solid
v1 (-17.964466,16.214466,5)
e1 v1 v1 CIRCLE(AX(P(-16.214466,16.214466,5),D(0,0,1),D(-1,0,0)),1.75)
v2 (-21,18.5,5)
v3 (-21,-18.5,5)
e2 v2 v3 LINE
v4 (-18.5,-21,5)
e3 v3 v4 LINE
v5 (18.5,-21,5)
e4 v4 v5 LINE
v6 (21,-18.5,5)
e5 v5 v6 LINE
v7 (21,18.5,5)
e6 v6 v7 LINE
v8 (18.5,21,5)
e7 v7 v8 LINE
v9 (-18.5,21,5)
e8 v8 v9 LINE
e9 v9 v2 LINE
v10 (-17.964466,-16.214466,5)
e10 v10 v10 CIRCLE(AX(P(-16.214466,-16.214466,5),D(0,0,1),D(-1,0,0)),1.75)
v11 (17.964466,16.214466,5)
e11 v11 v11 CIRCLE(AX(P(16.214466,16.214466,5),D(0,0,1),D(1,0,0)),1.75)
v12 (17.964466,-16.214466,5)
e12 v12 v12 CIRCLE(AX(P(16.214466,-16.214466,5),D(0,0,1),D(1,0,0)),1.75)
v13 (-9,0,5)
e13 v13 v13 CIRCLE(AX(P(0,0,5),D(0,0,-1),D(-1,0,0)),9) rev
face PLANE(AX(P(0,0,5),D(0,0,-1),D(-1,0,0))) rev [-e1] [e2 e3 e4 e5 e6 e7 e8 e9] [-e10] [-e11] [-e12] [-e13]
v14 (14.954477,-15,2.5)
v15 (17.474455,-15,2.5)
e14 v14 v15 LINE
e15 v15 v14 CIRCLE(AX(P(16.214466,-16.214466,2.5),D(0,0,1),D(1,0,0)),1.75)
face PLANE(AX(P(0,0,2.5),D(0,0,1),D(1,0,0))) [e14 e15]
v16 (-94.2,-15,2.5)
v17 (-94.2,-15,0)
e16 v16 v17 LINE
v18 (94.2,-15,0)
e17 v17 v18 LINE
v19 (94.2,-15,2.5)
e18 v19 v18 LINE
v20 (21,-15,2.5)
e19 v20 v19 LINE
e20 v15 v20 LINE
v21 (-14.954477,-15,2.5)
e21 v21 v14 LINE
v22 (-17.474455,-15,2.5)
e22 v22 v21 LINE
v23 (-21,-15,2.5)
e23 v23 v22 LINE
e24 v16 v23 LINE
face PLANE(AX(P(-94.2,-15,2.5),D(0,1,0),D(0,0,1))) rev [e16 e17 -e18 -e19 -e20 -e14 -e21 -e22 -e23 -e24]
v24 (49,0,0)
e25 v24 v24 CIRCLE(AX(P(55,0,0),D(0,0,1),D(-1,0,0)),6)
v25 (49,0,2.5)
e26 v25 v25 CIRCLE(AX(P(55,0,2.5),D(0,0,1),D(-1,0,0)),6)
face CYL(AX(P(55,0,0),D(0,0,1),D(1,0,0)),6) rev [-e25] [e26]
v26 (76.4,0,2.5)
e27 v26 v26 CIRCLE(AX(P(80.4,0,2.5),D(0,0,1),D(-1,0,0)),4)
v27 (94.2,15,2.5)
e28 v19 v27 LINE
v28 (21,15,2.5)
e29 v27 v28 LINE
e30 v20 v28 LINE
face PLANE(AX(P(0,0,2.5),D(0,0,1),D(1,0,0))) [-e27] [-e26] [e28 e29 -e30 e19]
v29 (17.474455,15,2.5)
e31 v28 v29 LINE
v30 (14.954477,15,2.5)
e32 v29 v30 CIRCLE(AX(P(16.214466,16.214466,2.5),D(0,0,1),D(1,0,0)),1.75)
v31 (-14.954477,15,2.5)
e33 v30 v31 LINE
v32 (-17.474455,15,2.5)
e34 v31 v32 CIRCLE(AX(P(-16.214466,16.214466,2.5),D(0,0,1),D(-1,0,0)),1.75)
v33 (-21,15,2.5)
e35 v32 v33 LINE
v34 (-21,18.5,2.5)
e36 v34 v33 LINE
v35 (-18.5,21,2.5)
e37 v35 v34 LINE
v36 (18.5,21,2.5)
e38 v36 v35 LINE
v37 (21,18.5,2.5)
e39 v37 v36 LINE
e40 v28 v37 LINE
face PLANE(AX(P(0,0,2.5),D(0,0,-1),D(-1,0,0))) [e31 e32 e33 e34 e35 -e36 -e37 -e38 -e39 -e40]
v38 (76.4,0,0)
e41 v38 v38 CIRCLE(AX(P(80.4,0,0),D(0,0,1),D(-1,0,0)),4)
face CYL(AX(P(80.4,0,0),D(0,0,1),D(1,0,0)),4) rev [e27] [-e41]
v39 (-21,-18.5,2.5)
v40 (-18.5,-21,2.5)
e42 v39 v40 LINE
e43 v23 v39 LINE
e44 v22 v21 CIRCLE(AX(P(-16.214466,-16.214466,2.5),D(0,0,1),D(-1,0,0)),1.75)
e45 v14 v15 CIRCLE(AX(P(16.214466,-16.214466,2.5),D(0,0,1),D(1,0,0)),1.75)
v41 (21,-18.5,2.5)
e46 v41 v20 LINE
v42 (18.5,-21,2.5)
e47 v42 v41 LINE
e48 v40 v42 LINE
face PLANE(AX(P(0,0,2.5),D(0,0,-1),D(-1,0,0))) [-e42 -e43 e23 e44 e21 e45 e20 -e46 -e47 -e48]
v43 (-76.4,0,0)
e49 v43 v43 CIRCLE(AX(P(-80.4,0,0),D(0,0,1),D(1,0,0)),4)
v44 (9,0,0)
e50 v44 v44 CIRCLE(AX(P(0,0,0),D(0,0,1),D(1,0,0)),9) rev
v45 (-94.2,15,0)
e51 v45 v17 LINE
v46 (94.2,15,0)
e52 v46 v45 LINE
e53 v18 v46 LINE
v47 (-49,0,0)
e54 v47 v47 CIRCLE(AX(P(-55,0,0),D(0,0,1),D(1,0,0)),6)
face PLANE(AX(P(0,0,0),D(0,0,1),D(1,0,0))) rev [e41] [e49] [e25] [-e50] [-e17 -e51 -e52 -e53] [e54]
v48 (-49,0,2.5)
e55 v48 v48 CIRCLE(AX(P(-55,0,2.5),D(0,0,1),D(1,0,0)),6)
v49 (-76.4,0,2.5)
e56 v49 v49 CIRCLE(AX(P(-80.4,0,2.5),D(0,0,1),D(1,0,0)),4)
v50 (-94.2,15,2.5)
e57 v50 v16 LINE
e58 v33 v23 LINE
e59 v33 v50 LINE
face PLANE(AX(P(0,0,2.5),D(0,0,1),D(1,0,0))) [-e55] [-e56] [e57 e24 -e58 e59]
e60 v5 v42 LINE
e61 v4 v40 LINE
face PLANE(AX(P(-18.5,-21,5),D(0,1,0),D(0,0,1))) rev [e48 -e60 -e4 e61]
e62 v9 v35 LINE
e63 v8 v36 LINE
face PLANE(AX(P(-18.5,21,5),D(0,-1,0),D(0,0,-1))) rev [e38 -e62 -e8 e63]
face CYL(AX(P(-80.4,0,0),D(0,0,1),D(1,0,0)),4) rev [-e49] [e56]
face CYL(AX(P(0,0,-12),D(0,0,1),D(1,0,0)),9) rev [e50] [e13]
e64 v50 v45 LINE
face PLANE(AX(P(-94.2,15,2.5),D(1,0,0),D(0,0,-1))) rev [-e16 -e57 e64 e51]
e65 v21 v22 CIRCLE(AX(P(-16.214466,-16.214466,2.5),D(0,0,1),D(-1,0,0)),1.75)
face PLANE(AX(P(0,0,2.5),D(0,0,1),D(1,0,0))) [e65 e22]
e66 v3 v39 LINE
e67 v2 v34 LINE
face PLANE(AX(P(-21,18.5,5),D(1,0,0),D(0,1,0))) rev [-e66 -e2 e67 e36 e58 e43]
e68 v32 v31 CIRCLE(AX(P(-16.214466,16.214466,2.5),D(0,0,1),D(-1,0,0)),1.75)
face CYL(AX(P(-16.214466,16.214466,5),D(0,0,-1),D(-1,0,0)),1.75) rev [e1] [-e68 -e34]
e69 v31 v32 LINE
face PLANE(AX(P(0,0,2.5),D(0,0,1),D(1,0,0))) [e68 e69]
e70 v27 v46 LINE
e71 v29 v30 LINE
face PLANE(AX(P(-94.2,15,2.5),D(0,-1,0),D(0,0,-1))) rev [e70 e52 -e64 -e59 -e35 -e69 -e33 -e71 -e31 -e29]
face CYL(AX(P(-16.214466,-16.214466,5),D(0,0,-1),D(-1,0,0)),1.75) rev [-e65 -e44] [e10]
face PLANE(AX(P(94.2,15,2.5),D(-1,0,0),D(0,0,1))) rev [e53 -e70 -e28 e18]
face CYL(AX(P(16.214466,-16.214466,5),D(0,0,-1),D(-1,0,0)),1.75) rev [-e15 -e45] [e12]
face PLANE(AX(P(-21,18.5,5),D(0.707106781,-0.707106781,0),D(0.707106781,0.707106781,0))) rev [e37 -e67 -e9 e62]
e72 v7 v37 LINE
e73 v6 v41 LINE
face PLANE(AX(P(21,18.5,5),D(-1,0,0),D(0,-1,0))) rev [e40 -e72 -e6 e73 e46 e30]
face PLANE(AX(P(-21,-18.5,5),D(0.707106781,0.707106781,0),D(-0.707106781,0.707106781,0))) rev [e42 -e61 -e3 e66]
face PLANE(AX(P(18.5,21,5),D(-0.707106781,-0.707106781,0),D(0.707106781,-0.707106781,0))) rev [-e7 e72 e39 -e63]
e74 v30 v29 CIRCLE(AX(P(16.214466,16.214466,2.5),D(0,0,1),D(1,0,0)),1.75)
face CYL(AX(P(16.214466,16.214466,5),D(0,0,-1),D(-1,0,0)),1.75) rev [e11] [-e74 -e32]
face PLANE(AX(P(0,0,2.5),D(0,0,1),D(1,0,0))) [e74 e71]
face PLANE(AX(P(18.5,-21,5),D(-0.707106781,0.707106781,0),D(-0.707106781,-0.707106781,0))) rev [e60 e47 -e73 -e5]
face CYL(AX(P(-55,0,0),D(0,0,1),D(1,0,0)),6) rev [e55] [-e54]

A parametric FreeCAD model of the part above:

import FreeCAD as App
import Part
import Sketcher

V = App.Vector
Q = App.Units.Quantity


def add_polygon(sketch, points):
    """Adds a closed chain of lines whose ends are joined by coincident constraints."""
    first, n = sketch.GeometryCount, len(points)
    for a, b in zip(points, points[1:] + points[:1]):
        sketch.addGeometry(Part.LineSegment(App.Vector(*a, 0), App.Vector(*b, 0)), False)
    for i in range(n):
        sketch.addConstraint(Sketcher.Constraint("Coincident", first + i, 2, first + (i + 1) % n, 1))

doc = App.newDocument("Part")
body = doc.addObject("PartDesign::Body", "Body")

# Sketch on XY plane
sketch1 = doc.addObject("Sketcher::SketchObject", "Sketch")
body.addObject(sketch1)
sketch1.AttachmentSupport = (doc.XY_Plane, [""])
sketch1.MapMode = "FlatFace"
add_polygon(sketch1, [(-94, 15), (-94, -15), (94, -15), (94, 15)])  # lines 0-3
sketch1.addConstraint([
    Sketcher.Constraint("Vertical", 0),
    Sketcher.Constraint("Horizontal", 1),
    Sketcher.Constraint("Vertical", 2),
    Sketcher.Constraint("Horizontal", 3),
    Sketcher.Constraint("Symmetric", 0, 2, 2, 2, -1, 1),
    Sketcher.Constraint("DistanceY", 0, 2, 0, 1, Q("30 mm")),
    Sketcher.Constraint("DistanceX", 1, 1, 1, 2, Q("188.4 mm")),
])
pad1 = doc.addObject("PartDesign::Pad", "Pad")
body.addObject(pad1)
pad1.Profile = sketch1
pad1.Length = 2.5

# Sketch on XY plane
sketch2 = doc.addObject("Sketcher::SketchObject", "Sketch001")
body.addObject(sketch2)
sketch2.AttachmentSupport = (doc.XY_Plane, [""])
sketch2.MapMode = "FlatFace"
sketch2.AttachmentOffset = App.Placement(V(0, 0, 2.5), App.Rotation())
sketch2.addGeometry([
    Part.Circle(V(-55, 0, 0), V(0, 0, 1), 6),  # 0
    Part.Circle(V(55, 0, 0), V(0, 0, 1), 6),  # 1
    Part.Circle(V(0, 0, 0), V(0, 0, 1), 6),  # 2
    Part.Circle(V(-80.4, 0, 0), V(0, 0, 1), 4),  # 3
    Part.Circle(V(80.4, 0, 0), V(0, 0, 1), 4),  # 4
], False)
sketch2.addConstraint([
    Sketcher.Constraint("Coincident", 2, 3, -1, 1),
    Sketcher.Constraint("Equal", 0, 1),
    Sketcher.Constraint("Equal", 1, 2),
    Sketcher.Constraint("Equal", 3, 4),
    Sketcher.Constraint("Symmetric", 0, 3, 1, 3, -1, 1),
    Sketcher.Constraint("Symmetric", 3, 3, 4, 3, -1, 1),
    Sketcher.Constraint("PointOnObject", 0, 3, -1),
    Sketcher.Constraint("PointOnObject", 3, 3, -1),
    Sketcher.Constraint("Diameter", 0, Q("12 mm")),
    Sketcher.Constraint("Diameter", 3, Q("8 mm")),
    Sketcher.Constraint("DistanceX", 0, 3, -1, 1, Q("55 mm")),
    Sketcher.Constraint("DistanceX", 3, 3, -1, 1, Q("80.4 mm")),
])
pocket1 = doc.addObject("PartDesign::Pocket", "Pocket")
body.addObject(pocket1)
pocket1.Profile = sketch2
pocket1.Type = "ThroughAll"

# Sketch on XY plane
sketch3 = doc.addObject("Sketcher::SketchObject", "Sketch002")
body.addObject(sketch3)
sketch3.AttachmentSupport = (doc.XY_Plane, [""])
sketch3.MapMode = "FlatFace"
sketch3.AttachmentOffset = App.Placement(V(0, 0, 2.5), App.Rotation())
add_polygon(sketch3, [(-18.5, 21), (-21, 18.5), (-21, -18.5), (-18.5, -21), (18.5, -21), (21, -18.5), (21, 18.5), (18.5, 21)])  # lines 0-7
sketch3.addGeometry(Part.Circle(V(16.2, -16.2, 0), V(0, 0, 1), 1.8), False)  # 8
sketch3.addGeometry(Part.Circle(V(-16.2, -16.2, 0), V(0, 0, 1), 1.8), False)  # 9
sketch3.addGeometry(Part.Circle(V(16.2, 16.2, 0), V(0, 0, 1), 1.8), False)  # 10
sketch3.addGeometry(Part.Circle(V(-16.2, 16.2, 0), V(0, 0, 1), 1.8), False)  # 11
sketch3.addConstraint([
    Sketcher.Constraint("Vertical", 1),
    Sketcher.Constraint("Horizontal", 3),
    Sketcher.Constraint("Vertical", 5),
    Sketcher.Constraint("Horizontal", 7),
    Sketcher.Constraint("Equal", 8, 9),
    Sketcher.Constraint("Equal", 9, 10),
    Sketcher.Constraint("Equal", 10, 11),
    Sketcher.Constraint("Symmetric", 9, 3, 10, 3, -1, 1),
    Sketcher.Constraint("Symmetric", 8, 3, 11, 3, -1, 1),
    Sketcher.Constraint("Symmetric", 0, 2, 4, 2, -1, 1),
    Sketcher.Constraint("Symmetric", 2, 2, 6, 2, -1, 1),
    Sketcher.Constraint("Symmetric", 8, 3, 9, 3, -2),
    Sketcher.Constraint("Perpendicular", 0, 2),
    Sketcher.Constraint("Perpendicular", 2, 4),
    Sketcher.Constraint("Perpendicular", 4, 6),
    Sketcher.Constraint("Horizontal", 1, 2, 4, 2),
    Sketcher.Constraint("Vertical", 3, 2, 6, 2),
    Sketcher.Constraint("Equal", 7, 1),
    Sketcher.Constraint("Diameter", 8, Q("3.5 mm")),
    Sketcher.Constraint("DistanceX", 3, 1, 3, 2, Q("37 mm")),
    Sketcher.Constraint("DistanceX", 0, 2, -1, 1, Q("21 mm")),
    Sketcher.Constraint("DistanceX", -1, 1, 8, 3, Q("16.214466 mm")),
    Sketcher.Constraint("DistanceY", 8, 3, -1, 1, Q("16.214466 mm")),
])
pad2 = doc.addObject("PartDesign::Pad", "Pad001")
body.addObject(pad2)
pad2.Profile = sketch3
pad2.Length = 2.5

# Sketch on XY plane
sketch4 = doc.addObject("Sketcher::SketchObject", "Sketch003")
body.addObject(sketch4)
sketch4.AttachmentSupport = (doc.XY_Plane, [""])
sketch4.MapMode = "FlatFace"
sketch4.AttachmentOffset = App.Placement(V(0, 0, 2.5), App.Rotation())
sketch4.addGeometry(Part.Circle(V(0, 0, 0), V(0, 0, 1), 9), False)
sketch4.addConstraint([
    Sketcher.Constraint("Coincident", 0, 3, -1, 1),
    Sketcher.Constraint("Diameter", 0, Q("18 mm")),
])
pocket2 = doc.addObject("PartDesign::Pocket", "Pocket001")
body.addObject(pocket2)
pocket2.Profile = sketch4
pocket2.Type = "ThroughAll"
pocket2.Midplane = True

doc.recompute()
